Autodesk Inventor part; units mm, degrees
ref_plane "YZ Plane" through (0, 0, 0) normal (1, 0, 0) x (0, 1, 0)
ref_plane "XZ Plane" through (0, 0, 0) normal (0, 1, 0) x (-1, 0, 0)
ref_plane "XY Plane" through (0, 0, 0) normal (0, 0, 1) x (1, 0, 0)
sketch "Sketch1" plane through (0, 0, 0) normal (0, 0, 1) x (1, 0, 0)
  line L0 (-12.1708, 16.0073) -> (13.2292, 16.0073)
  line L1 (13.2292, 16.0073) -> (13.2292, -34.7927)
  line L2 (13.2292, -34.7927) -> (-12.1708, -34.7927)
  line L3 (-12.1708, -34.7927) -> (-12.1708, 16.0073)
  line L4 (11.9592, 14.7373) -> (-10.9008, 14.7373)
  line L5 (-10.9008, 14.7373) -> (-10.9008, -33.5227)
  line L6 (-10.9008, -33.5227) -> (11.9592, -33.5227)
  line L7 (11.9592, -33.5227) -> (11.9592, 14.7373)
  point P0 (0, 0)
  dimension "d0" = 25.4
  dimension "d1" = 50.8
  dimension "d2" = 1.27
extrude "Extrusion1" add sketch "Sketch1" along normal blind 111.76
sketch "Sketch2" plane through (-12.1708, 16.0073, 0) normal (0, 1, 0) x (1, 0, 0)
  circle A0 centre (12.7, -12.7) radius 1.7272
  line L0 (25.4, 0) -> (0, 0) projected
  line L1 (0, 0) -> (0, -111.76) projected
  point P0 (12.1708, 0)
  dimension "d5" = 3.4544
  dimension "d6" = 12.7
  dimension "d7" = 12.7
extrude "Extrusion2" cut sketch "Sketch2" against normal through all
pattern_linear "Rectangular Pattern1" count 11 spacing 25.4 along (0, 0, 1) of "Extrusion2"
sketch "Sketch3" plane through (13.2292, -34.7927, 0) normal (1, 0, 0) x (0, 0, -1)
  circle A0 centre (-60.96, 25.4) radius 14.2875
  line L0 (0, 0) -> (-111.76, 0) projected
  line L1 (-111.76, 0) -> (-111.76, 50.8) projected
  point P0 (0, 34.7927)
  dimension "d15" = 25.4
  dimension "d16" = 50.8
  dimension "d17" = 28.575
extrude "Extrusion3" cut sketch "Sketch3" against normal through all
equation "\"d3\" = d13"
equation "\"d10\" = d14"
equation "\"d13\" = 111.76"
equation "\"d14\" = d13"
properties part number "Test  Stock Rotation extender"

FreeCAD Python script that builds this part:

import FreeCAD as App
import Part
import Sketcher
from FreeCAD import Vector
Q = App.Units.Quantity


def add_polygon(sketch, points):
    """Adds a closed chain of lines whose ends are joined by coincident constraints."""
    first, n = sketch.GeometryCount, len(points)
    for a, b in zip(points, points[1:] + points[:1]):
        sketch.addGeometry(Part.LineSegment(App.Vector(*a, 0), App.Vector(*b, 0)), False)
    for i in range(n):
        sketch.addConstraint(Sketcher.Constraint("Coincident", first + i, 2, first + (i + 1) % n, 1))

doc = App.newDocument("Part")
params = doc.addObject("Spreadsheet::Sheet", "Params")
for row, (alias, value) in enumerate([
    ("sketch1_width", "1 in"),
    ("sketch1_height", "2 in"),
    ("pad1_length", "4.4 in"),
    ("sketch2_diameter", "0.136 in"),
    ("linearpattern_pitch", "1 in"),
    ("sketch3_diameter", "1.125 in"),
], start=1):
    params.set(f"A{row}", alias)
    params.set(f"B{row}", "=" + value)
    params.setAlias(f"B{row}", alias)

body = doc.addObject("PartDesign::Body", "Body")

sketch1 = body.newObject("Sketcher::SketchObject", "Sketch")
sketch1.AttachmentSupport = (doc.getObject("XY_Plane"), [""])
sketch1.MapMode = "FlatFace"
add_polygon(sketch1, [(13, 16), (-12, 16), (-12, -35), (13, -35)])
add_polygon(sketch1, [(-11, 15), (12, 15), (12, -34), (-11, -34)])
sketch1.addConstraint(Sketcher.Constraint("Horizontal", 0))
sketch1.addConstraint(Sketcher.Constraint("Vertical", 1))
sketch1.addConstraint(Sketcher.Constraint("Horizontal", 2))
sketch1.addConstraint(Sketcher.Constraint("Vertical", 3))
sketch1.addConstraint(Sketcher.Constraint("Horizontal", 4))
sketch1.addConstraint(Sketcher.Constraint("Vertical", 5))
sketch1.addConstraint(Sketcher.Constraint("Horizontal", 6))
sketch1.addConstraint(Sketcher.Constraint("Vertical", 7))
sketch1.addConstraint(Sketcher.Constraint("DistanceX", 0, 2, 0, 1, Q("1 in")))
sketch1.addConstraint(Sketcher.Constraint("DistanceY", 1, 2, 1, 1, Q("2 in")))
sketch1.addConstraint(Sketcher.Constraint("DistanceX", 4, 2, 3, 2, Q("0.05 in")))
sketch1.addConstraint(Sketcher.Constraint("DistanceY", 4, 2, 3, 2, Q("0.05 in")))
sketch1.addConstraint(Sketcher.Constraint("DistanceY", 2, 2, 5, 2, Q("0.05 in")))
sketch1.addConstraint(Sketcher.Constraint("DistanceX", 1, 2, 6, 2, Q("0.05 in")))
sketch1.addConstraint(Sketcher.Constraint("DistanceY", -1, 1, 0, 2, Q("0.6302 in")))
sketch1.addConstraint(Sketcher.Constraint("DistanceX", 0, 2, -1, 1, 12.1708))
sketch1.setExpression("Constraints[16]", "Params.sketch1_width")
sketch1.setExpression("Constraints[17]", "Params.sketch1_height")
pad1 = body.newObject("PartDesign::Pad", "Pad")
pad1.Profile = sketch1
pad1.setExpression("Length", "Params.pad1_length")

sketch2 = body.newObject("Sketcher::SketchObject", "Sketch001")
sketch2.AttachmentSupport = (doc.getObject("XZ_Plane"), [""])
sketch2.MapMode = "FlatFace"
sketch2.AttachmentOffset = App.Placement(Vector(0, 0, -0.6302087 * 25.4), App.Rotation())
sketch2.addGeometry(Part.Circle(Vector(0.5, 12.7, 0), Vector(0, 0, 1), 1.7), False)
sketch2.addConstraint(Sketcher.Constraint("Diameter", 0, Q("0.136 in")))
sketch2.addConstraint(Sketcher.Constraint("DistanceY", -1, 1, 0, 3, Q("0.5 in")))
sketch2.addConstraint(Sketcher.Constraint("DistanceX", -1, 1, 0, 3, 0.5292))
sketch2.setExpression("Constraints[0]", "Params.sketch2_diameter")
pocket1 = body.newObject("PartDesign::Pocket", "Pocket")
pocket1.Profile = sketch2
pocket1.Type = "ThroughAll"
pocket1.Reversed = True
doc.recompute()

linearpattern = body.newObject("PartDesign::LinearPattern", "LinearPattern")
linearpattern.Originals = [pocket1]
linearpattern.Direction = (doc.getObject("Z_Axis"), [""])
linearpattern.Mode = "offset"
linearpattern.setExpression("Offset", "Params.linearpattern_pitch")
linearpattern.Occurrences = 11
body.Tip = linearpattern

sketch3 = body.newObject("Sketcher::SketchObject", "Sketch002")
sketch3.AttachmentSupport = (doc.getObject("YZ_Plane"), [""])
sketch3.MapMode = "FlatFace"
sketch3.AttachmentOffset = App.Placement(Vector(0, 0, 13.2292), App.Rotation())
sketch3.addGeometry(Part.Circle(Vector(-9, 61, 0), Vector(0, 0, 1), 14), False)
sketch3.addConstraint(Sketcher.Constraint("Diameter", 0, Q("1.125 in")))
sketch3.addConstraint(Sketcher.Constraint("DistanceY", -1, 1, 0, 3, Q("2.4 in")))
sketch3.addConstraint(Sketcher.Constraint("DistanceX", 0, 3, -1, 1, Q("0.3698 in")))
sketch3.setExpression("Constraints[0]", "Params.sketch3_diameter")
pocket2 = body.newObject("PartDesign::Pocket", "Pocket001")
pocket2.Profile = sketch3
pocket2.Type = "ThroughAll"

doc.recompute()
